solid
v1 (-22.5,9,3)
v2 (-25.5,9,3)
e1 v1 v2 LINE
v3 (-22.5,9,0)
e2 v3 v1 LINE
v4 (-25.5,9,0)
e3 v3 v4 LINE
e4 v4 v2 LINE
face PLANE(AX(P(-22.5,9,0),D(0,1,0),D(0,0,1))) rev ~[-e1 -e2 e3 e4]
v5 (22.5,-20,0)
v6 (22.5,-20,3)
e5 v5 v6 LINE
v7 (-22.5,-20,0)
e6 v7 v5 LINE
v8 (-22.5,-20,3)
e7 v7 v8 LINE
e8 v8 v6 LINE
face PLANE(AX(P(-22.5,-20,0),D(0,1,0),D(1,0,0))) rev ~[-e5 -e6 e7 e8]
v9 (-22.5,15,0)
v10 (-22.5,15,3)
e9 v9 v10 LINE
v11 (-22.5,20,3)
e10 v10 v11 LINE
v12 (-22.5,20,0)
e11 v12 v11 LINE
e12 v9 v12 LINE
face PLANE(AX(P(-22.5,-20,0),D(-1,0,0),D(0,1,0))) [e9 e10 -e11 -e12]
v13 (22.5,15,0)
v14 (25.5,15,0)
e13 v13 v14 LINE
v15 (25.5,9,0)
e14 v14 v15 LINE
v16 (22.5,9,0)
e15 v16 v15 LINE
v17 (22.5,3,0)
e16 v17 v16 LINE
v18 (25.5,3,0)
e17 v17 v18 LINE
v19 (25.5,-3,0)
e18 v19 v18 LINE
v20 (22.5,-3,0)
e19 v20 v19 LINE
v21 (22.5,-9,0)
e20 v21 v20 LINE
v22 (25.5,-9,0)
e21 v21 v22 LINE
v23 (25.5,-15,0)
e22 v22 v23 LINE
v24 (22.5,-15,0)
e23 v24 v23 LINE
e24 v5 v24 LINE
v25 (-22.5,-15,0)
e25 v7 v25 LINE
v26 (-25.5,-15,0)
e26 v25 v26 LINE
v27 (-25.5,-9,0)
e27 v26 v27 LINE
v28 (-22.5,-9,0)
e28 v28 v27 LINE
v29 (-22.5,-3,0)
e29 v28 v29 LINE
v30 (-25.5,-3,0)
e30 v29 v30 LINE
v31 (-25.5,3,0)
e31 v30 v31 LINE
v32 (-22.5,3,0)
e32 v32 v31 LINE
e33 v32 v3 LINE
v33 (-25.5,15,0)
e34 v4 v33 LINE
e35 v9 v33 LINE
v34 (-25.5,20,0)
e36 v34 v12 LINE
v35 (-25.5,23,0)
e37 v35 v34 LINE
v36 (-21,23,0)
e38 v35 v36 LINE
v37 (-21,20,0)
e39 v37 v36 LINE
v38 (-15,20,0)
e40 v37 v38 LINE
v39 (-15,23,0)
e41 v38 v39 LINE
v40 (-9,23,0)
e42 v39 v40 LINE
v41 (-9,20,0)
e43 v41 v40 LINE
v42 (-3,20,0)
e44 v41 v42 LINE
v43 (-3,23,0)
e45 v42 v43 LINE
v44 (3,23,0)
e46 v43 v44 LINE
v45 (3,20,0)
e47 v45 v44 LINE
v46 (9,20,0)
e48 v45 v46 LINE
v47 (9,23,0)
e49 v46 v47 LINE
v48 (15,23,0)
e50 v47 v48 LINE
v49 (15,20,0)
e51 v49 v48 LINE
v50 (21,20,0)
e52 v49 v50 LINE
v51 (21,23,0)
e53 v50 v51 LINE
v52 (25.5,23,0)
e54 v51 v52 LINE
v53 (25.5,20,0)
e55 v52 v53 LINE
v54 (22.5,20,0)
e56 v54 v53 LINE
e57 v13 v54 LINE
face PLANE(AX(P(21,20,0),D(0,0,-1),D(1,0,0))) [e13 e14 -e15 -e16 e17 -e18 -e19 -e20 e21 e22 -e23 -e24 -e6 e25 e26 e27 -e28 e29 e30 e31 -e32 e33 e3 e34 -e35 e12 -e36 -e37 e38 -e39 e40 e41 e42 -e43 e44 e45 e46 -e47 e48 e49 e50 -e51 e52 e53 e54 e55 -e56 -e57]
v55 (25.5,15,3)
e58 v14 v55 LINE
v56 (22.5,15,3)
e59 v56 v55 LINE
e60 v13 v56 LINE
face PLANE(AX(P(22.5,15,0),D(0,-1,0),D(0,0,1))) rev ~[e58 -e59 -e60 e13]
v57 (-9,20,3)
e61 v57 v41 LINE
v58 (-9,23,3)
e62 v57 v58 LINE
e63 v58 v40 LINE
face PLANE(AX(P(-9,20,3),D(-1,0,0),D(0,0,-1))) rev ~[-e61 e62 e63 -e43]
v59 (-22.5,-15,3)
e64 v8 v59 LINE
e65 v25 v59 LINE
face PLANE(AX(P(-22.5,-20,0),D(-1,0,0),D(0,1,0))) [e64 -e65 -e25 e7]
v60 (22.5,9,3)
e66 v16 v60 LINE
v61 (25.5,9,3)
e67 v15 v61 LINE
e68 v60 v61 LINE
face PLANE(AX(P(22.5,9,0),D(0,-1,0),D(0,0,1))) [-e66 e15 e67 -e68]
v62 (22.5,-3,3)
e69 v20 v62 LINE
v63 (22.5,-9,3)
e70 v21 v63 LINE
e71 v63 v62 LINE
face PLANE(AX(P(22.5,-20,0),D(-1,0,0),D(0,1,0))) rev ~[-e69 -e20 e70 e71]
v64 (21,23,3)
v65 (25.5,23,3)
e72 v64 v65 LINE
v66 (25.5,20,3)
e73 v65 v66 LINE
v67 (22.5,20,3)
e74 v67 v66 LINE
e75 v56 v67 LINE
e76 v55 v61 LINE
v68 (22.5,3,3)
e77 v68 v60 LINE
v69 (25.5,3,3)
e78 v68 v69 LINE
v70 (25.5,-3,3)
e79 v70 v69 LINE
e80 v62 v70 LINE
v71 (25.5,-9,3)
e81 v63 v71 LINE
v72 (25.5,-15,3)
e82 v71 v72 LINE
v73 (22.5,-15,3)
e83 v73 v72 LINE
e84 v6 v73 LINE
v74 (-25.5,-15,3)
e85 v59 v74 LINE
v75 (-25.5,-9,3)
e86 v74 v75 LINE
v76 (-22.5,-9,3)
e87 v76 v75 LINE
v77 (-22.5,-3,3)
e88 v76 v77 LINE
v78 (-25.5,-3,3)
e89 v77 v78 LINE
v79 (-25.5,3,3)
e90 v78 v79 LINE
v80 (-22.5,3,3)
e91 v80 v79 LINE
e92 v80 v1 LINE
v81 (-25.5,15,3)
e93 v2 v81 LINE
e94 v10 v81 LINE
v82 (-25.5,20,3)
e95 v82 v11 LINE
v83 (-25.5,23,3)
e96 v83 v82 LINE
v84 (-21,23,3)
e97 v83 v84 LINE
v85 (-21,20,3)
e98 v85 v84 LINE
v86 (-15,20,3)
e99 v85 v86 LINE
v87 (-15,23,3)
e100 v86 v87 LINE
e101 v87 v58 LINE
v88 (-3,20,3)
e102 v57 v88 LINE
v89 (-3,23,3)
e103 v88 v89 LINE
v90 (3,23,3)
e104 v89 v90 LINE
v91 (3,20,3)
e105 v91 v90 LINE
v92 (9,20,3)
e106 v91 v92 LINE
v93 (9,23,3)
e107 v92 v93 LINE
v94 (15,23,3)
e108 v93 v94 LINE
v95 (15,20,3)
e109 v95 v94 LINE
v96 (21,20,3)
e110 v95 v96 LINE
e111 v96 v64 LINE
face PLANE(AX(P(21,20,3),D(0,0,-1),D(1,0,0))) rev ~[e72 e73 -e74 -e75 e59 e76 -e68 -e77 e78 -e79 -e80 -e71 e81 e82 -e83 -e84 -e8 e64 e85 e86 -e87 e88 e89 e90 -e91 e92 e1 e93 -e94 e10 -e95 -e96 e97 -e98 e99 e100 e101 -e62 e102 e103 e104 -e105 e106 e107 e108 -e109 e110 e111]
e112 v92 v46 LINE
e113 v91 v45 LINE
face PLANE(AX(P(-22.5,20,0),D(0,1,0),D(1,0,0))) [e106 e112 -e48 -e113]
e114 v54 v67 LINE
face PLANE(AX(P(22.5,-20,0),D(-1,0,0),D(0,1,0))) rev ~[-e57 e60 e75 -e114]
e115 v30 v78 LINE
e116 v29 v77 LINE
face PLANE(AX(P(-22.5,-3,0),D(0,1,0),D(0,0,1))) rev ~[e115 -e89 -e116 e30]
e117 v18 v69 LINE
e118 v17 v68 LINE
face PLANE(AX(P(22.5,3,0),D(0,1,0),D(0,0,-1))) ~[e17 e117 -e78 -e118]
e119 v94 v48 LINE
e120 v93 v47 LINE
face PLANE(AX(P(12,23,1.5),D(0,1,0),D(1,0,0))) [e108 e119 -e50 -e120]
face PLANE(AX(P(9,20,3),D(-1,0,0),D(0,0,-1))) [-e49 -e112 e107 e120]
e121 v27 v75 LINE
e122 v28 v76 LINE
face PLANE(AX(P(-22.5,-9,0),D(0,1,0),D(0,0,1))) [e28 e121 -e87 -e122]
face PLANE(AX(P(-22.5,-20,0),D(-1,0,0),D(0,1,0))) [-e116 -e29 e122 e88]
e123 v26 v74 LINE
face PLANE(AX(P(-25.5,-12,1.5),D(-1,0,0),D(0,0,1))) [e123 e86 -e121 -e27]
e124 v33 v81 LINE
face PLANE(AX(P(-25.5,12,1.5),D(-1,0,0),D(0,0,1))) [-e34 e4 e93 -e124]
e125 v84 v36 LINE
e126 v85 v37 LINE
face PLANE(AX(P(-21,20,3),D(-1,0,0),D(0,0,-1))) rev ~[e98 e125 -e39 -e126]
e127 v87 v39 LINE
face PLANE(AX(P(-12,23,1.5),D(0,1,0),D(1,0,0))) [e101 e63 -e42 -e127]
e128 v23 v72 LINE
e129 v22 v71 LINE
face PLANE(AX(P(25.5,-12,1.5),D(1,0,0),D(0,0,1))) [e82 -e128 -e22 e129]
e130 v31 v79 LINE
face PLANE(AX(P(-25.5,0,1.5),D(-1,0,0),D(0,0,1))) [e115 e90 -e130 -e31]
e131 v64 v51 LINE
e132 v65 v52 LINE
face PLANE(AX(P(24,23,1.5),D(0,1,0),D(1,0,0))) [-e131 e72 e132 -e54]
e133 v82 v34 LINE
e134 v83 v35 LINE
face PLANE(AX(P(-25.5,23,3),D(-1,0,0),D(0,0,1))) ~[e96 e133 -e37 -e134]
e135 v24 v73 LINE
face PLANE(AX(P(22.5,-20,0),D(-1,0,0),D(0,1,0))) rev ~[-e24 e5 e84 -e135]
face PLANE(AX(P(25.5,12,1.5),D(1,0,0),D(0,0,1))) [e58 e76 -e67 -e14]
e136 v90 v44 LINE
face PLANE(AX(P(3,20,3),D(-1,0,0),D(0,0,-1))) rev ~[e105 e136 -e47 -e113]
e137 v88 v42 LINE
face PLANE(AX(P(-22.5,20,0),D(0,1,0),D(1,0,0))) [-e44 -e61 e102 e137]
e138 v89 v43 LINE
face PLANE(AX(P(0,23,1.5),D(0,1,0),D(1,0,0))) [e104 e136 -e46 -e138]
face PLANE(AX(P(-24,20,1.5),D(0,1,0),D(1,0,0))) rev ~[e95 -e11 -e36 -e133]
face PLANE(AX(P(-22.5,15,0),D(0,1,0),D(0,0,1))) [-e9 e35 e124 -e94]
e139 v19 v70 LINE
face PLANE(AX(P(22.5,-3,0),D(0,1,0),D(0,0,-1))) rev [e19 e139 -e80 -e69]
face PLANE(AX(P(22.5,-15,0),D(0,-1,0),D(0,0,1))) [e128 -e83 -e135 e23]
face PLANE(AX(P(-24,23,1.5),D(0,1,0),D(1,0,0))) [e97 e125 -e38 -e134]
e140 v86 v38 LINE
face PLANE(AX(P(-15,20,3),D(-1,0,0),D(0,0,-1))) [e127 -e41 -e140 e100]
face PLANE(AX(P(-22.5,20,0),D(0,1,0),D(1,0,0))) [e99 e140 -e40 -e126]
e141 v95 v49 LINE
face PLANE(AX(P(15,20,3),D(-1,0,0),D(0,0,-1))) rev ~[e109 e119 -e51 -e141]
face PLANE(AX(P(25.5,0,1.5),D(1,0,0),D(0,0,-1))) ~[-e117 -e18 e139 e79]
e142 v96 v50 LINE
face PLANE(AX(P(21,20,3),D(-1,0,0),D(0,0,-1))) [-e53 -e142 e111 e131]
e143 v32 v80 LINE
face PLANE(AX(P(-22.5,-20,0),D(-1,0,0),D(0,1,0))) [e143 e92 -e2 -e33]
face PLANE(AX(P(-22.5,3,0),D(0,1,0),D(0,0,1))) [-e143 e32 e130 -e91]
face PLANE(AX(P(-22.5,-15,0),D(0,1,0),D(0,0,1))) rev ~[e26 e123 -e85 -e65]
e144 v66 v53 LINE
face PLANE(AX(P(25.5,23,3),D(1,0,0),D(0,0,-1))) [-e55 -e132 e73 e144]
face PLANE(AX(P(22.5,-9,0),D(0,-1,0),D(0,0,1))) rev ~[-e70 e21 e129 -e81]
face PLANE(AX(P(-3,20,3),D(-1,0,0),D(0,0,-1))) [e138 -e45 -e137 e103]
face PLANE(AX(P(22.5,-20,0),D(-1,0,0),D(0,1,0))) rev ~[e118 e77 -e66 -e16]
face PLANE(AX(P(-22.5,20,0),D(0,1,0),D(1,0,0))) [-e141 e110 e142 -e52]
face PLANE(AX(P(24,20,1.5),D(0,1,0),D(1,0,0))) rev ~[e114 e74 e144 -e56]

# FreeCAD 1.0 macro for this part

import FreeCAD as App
import Part
import Sketcher

V = App.Vector
Q = App.Units.Quantity

doc = App.newDocument("Part")
body = doc.addObject("PartDesign::Body", "Body")

sketch1 = body.newObject("Sketcher::SketchObject", "Sketch")
sketch1.AttachmentSupport = (doc.getObject("XY_Plane"), [""])
sketch1.MapMode = "FlatFace"
sketch1.addGeometry([
    Part.LineSegment(V(-22, 20, 0), V(-22, -20, 0)),
    Part.LineSegment(V(-22, -20, 0), V(22, -20, 0)),
    Part.LineSegment(V(22, -20, 0), V(22, 20, 0)),
    Part.LineSegment(V(22, 20, 0), V(-22, 20, 0)),
], False)
sketch1.addConstraint([
    Sketcher.Constraint("Coincident", 0, 2, 1, 1),
    Sketcher.Constraint("Coincident", 1, 2, 2, 1),
    Sketcher.Constraint("Coincident", 2, 2, 3, 1),
    Sketcher.Constraint("Coincident", 3, 2, 0, 1),
    Sketcher.Constraint("Vertical", 0),
    Sketcher.Constraint("Horizontal", 1),
    Sketcher.Constraint("Vertical", 2),
    Sketcher.Constraint("Horizontal", 3),
    Sketcher.Constraint("Symmetric", 0, 2, 2, 2, -1, 1),
    Sketcher.Constraint("DistanceX", 1, 1, 1, 2, Q("45 mm")),
    Sketcher.Constraint("DistanceY", 0, 2, 0, 1, Q("40 mm")),
])
pad1 = body.newObject("PartDesign::Pad", "Pad")
pad1.Profile = sketch1
pad1.Length = 3

sketch2 = body.newObject("Sketcher::SketchObject", "Sketch001")
sketch2.AttachmentSupport = (doc.getObject("YZ_Plane"), [""])
sketch2.MapMode = "FlatFace"
sketch2.AttachmentOffset = App.Placement(V(0, 0, -22.5), App.Rotation())
sketch2.addGeometry([
    Part.LineSegment(V(3, 0, 0), V(-3, 0, 0)),
    Part.LineSegment(V(-3, 0, 0), V(-3, 3, 0)),
    Part.LineSegment(V(-3, 3, 0), V(3, 3, 0)),
    Part.LineSegment(V(3, 3, 0), V(3, 0, 0)),
], False)
sketch2.addConstraint([
    Sketcher.Constraint("Coincident", 0, 2, 1, 1),
    Sketcher.Constraint("Coincident", 1, 2, 2, 1),
    Sketcher.Constraint("Coincident", 2, 2, 3, 1),
    Sketcher.Constraint("Coincident", 3, 2, 0, 1),
    Sketcher.Constraint("Horizontal", 0),
    Sketcher.Constraint("Vertical", 1),
    Sketcher.Constraint("Horizontal", 2),
    Sketcher.Constraint("Vertical", 3),
    Sketcher.Constraint("Symmetric", 0, 2, 3, 2, -1, 1),
    Sketcher.Constraint("DistanceX", 0, 2, 0, 1, Q("6 mm")),
    Sketcher.Constraint("DistanceY", 1, 1, 1, 2, Q("3 mm")),
])
pad2 = body.newObject("PartDesign::Pad", "Pad001")
pad2.Profile = sketch2
pad2.Length = 3
pad2.Reversed = True
doc.recompute()

linearpattern = body.newObject("PartDesign::LinearPattern", "LinearPattern")
linearpattern.Originals = [pad2]
linearpattern.Direction = (doc.getObject("Y_Axis"), [""])
linearpattern.Mode = "offset"
linearpattern.Offset = 12
linearpattern.Occurrences = 2
linearpattern.Reversed = True
body.Tip = linearpattern
doc.recompute()

linearpattern2 = body.newObject("PartDesign::LinearPattern", "LinearPattern001")
linearpattern2.Originals = [pad2]
linearpattern2.Direction = (doc.getObject("Y_Axis"), [""])
linearpattern2.Mode = "offset"
linearpattern2.Offset = 12
linearpattern2.Occurrences = 2
body.Tip = linearpattern2

sketch3 = body.newObject("Sketcher::SketchObject", "Sketch002")
sketch3.AttachmentSupport = (doc.getObject("XZ_Plane"), [""])
sketch3.MapMode = "FlatFace"
sketch3.AttachmentOffset = App.Placement(V(0, 0, -20), App.Rotation())
sketch3.addGeometry([
    Part.LineSegment(V(-3, 0, 0), V(-3, 3, 0)),
    Part.LineSegment(V(-3, 3, 0), V(3, 3, 0)),
    Part.LineSegment(V(3, 3, 0), V(3, 0, 0)),
    Part.LineSegment(V(3, 0, 0), V(-3, 0, 0)),
], False)
sketch3.addConstraint([
    Sketcher.Constraint("Coincident", 0, 2, 1, 1),
    Sketcher.Constraint("Coincident", 1, 2, 2, 1),
    Sketcher.Constraint("Coincident", 2, 2, 3, 1),
    Sketcher.Constraint("Coincident", 3, 2, 0, 1),
    Sketcher.Constraint("Vertical", 0),
    Sketcher.Constraint("Horizontal", 1),
    Sketcher.Constraint("Vertical", 2),
    Sketcher.Constraint("Horizontal", 3),
    Sketcher.Constraint("Symmetric", 2, 2, 3, 2, -1, 1),
    Sketcher.Constraint("DistanceX", 1, 1, 1, 2, Q("6 mm")),
    Sketcher.Constraint("DistanceY", 0, 1, 0, 2, Q("3 mm")),
])
pad3 = body.newObject("PartDesign::Pad", "Pad002")
pad3.Profile = sketch3
pad3.Length = 3
pad3.Reversed = True
doc.recompute()

linearpattern3 = body.newObject("PartDesign::LinearPattern", "LinearPattern002")
linearpattern3.Originals = [pad3]
linearpattern3.Direction = (doc.getObject("X_Axis"), [""])
linearpattern3.Mode = "offset"
linearpattern3.Offset = 12
linearpattern3.Occurrences = 3
linearpattern3.Reversed = True
body.Tip = linearpattern3
doc.recompute()

linearpattern4 = body.newObject("PartDesign::LinearPattern", "LinearPattern003")
linearpattern4.Originals = [pad3]
linearpattern4.Direction = (doc.getObject("X_Axis"), [""])
linearpattern4.Mode = "offset"
linearpattern4.Offset = 12
linearpattern4.Occurrences = 3
body.Tip = linearpattern4

sketch4 = body.newObject("Sketcher::SketchObject", "Sketch003")
sketch4.AttachmentSupport = (doc.getObject("XZ_Plane"), [""])
sketch4.MapMode = "FlatFace"
sketch4.AttachmentOffset = App.Placement(V(0, 0, -23), App.Rotation())
sketch4.addGeometry([
    Part.LineSegment(V(25.5, 0, 0), V(25.5, 3, 0)),
    Part.LineSegment(V(25.5, 3, 0), V(27, 3, 0)),
    Part.LineSegment(V(27, 3, 0), V(27, 0, 0)),
    Part.LineSegment(V(27, 0, 0), V(25.5, 0, 0)),
], False)
sketch4.addConstraint([
    Sketcher.Constraint("Coincident", 0, 2, 1, 1),
    Sketcher.Constraint("Coincident", 1, 2, 2, 1),
    Sketcher.Constraint("Coincident", 2, 2, 3, 1),
    Sketcher.Constraint("Coincident", 3, 2, 0, 1),
    Sketcher.Constraint("Vertical", 0),
    Sketcher.Constraint("Horizontal", 1),
    Sketcher.Constraint("Vertical", 2),
    Sketcher.Constraint("Horizontal", 3),
    Sketcher.Constraint("PointOnObject", 2, 2, -1),
    Sketcher.Constraint("DistanceY", 0, 1, 0, 2, Q("3 mm")),
    Sketcher.Constraint("DistanceX", 1, 1, 1, 2, Q("1.5 mm")),
    Sketcher.Constraint("DistanceX", -1, 1, 1, 2, Q("27 mm")),
])
pocket1 = body.newObject("PartDesign::Pocket", "Pocket")
pocket1.Profile = sketch4
pocket1.Length = 3
pocket1.Reversed = True
doc.recompute()

mirrored = body.newObject("PartDesign::Mirrored", "Mirrored")
mirrored.Originals = [pad2]
mirrored.MirrorPlane = (doc.getObject("YZ_Plane"), [""])
body.Tip = mirrored

sketch5 = body.newObject("Sketcher::SketchObject", "Sketch004")
sketch5.AttachmentSupport = (doc.getObject("YZ_Plane"), [""])
sketch5.MapMode = "FlatFace"
sketch5.AttachmentOffset = App.Placement(V(0, 0, 22.5), App.Rotation())
sketch5.addGeometry([
    Part.LineSegment(V(-15, 0, 0), V(-9, 0, 0)),
    Part.LineSegment(V(-9, 0, 0), V(-9, 3, 0)),
    Part.LineSegment(V(-9, 3, 0), V(-15, 3, 0)),
    Part.LineSegment(V(-15, 3, 0), V(-15, 0, 0)),
], False)
sketch5.addConstraint([
    Sketcher.Constraint("Coincident", 0, 2, 1, 1),
    Sketcher.Constraint("Coincident", 1, 2, 2, 1),
    Sketcher.Constraint("Coincident", 2, 2, 3, 1),
    Sketcher.Constraint("Coincident", 3, 2, 0, 1),
    Sketcher.Constraint("Horizontal", 0),
    Sketcher.Constraint("Vertical", 1),
    Sketcher.Constraint("Horizontal", 2),
    Sketcher.Constraint("Vertical", 3),
    Sketcher.Constraint("PointOnObject", 0, 2, -1),
    Sketcher.Constraint("DistanceX", 0, 1, 0, 2, Q("6 mm")),
    Sketcher.Constraint("DistanceY", 1, 1, 1, 2, Q("3 mm")),
    Sketcher.Constraint("DistanceX", 0, 2, -1, 1, Q("9 mm")),
])
pad4 = body.newObject("PartDesign::Pad", "Pad003")
pad4.Profile = sketch5
pad4.Length = 3

sketch6 = body.newObject("Sketcher::SketchObject", "Sketch005")
sketch6.AttachmentSupport = (doc.getObject("YZ_Plane"), [""])
sketch6.MapMode = "FlatFace"
sketch6.AttachmentOffset = App.Placement(V(0, 0, 22.5), App.Rotation())
sketch6.addGeometry([
    Part.LineSegment(V(9, 0, 0), V(15, 0, 0)),
    Part.LineSegment(V(15, 0, 0), V(15, 3, 0)),
    Part.LineSegment(V(15, 3, 0), V(9, 3, 0)),
    Part.LineSegment(V(9, 3, 0), V(9, 0, 0)),
], False)
sketch6.addConstraint([
    Sketcher.Constraint("Coincident", 0, 2, 1, 1),
    Sketcher.Constraint("Coincident", 1, 2, 2, 1),
    Sketcher.Constraint("Coincident", 2, 2, 3, 1),
    Sketcher.Constraint("Coincident", 3, 2, 0, 1),
    Sketcher.Constraint("Horizontal", 0),
    Sketcher.Constraint("Vertical", 1),
    Sketcher.Constraint("Horizontal", 2),
    Sketcher.Constraint("Vertical", 3),
    Sketcher.Constraint("PointOnObject", 0, 2, -1),
    Sketcher.Constraint("DistanceX", 0, 1, 0, 2, Q("6 mm")),
    Sketcher.Constraint("DistanceY", 1, 1, 1, 2, Q("3 mm")),
    Sketcher.Constraint("DistanceX", -1, 1, 0, 2, Q("15 mm")),
])
pad5 = body.newObject("PartDesign::Pad", "Pad004")
pad5.Profile = sketch6
pad5.Length = 3
doc.recompute()

mirrored2 = body.newObject("PartDesign::Mirrored", "Mirrored001")
mirrored2.Originals = [pocket1]
mirrored2.MirrorPlane = (doc.getObject("YZ_Plane"), [""])
body.Tip = mirrored2

doc.recompute()
